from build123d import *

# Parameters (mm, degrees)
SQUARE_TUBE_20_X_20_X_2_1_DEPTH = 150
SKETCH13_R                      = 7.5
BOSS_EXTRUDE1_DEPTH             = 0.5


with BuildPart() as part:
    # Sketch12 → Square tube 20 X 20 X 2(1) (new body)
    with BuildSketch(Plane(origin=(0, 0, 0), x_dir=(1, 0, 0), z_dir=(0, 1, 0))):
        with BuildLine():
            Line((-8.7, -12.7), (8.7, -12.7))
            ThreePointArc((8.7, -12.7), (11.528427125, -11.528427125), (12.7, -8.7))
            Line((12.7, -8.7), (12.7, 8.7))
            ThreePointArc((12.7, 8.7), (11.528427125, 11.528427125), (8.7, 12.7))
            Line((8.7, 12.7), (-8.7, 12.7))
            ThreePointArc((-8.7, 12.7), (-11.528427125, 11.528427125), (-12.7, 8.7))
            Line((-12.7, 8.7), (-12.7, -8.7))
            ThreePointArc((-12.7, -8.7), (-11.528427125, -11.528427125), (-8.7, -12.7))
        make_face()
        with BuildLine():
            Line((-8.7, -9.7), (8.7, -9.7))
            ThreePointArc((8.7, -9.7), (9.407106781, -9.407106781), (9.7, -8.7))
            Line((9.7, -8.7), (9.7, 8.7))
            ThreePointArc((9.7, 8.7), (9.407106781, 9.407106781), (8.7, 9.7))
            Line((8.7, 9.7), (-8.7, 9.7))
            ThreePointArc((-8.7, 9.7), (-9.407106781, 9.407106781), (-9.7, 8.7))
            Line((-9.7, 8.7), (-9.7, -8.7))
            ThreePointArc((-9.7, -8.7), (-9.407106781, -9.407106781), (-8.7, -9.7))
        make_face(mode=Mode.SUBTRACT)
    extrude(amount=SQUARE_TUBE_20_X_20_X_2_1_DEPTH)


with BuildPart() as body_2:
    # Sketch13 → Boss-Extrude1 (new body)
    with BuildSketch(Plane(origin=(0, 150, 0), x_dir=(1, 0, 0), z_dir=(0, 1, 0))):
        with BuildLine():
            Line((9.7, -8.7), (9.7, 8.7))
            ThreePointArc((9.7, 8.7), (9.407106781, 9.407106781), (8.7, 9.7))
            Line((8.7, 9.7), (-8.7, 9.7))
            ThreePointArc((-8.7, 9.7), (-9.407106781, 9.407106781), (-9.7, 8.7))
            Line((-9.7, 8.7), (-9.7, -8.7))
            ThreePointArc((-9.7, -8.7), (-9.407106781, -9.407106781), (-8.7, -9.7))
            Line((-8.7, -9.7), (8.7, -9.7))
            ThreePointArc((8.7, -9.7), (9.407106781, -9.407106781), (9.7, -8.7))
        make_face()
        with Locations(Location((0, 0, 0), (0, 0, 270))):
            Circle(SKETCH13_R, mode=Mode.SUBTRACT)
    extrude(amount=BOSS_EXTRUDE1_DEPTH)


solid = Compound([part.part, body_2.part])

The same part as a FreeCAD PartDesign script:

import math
import FreeCAD as App
import Part
import Sketcher

V = App.Vector
Q = App.Units.Quantity

doc = App.newDocument("Part")
body = doc.addObject("PartDesign::Body", "Body")

# Sketch on XZ plane
sketch1 = body.newObject("Sketcher::SketchObject", "Sketch")
sketch1.AttachmentSupport = (doc.getObject("XZ_Plane"), [""])
sketch1.MapMode = "FlatFace"
sketch1.addGeometry([
    Part.LineSegment(V(-8.7, 12.7, 0), V(8.7, 12.7, 0)),  # 0
    Part.ArcOfCircle(Part.Circle(V(8.7, 8.7, 0), V(0, 0, 1), 4), math.radians(0), math.radians(90)),  # 1
    Part.LineSegment(V(12.7, 8.7, 0), V(12.7, -8.7, 0)),  # 2
    Part.ArcOfCircle(Part.Circle(V(8.7, -8.7, 0), V(0, 0, 1), 4), math.radians(-90), math.radians(0)),  # 3
    Part.LineSegment(V(8.7, -12.7, 0), V(-8.7, -12.7, 0)),  # 4
    Part.ArcOfCircle(Part.Circle(V(-8.7, -8.7, 0), V(0, 0, 1), 4), math.radians(180), math.radians(270)),  # 5
    Part.LineSegment(V(-12.7, -8.7, 0), V(-12.7, 8.7, 0)),  # 6
    Part.ArcOfCircle(Part.Circle(V(-8.7, 8.7, 0), V(0, 0, 1), 4), math.radians(90), math.radians(180)),  # 7
    Part.LineSegment(V(8.7, 9.7, 0), V(-8.7, 9.7, 0)),  # 8
    Part.ArcOfCircle(Part.Circle(V(-8.7, 8.7, 0), V(0, 0, 1), 1), math.radians(90), math.radians(180)),  # 9
    Part.LineSegment(V(-9.7, 8.7, 0), V(-9.7, -8.7, 0)),  # 10
    Part.ArcOfCircle(Part.Circle(V(-8.7, -8.7, 0), V(0, 0, 1), 1), math.radians(-180), math.radians(-90)),  # 11
    Part.LineSegment(V(-8.7, -9.7, 0), V(8.7, -9.7, 0)),  # 12
    Part.ArcOfCircle(Part.Circle(V(8.7, -8.7, 0), V(0, 0, 1), 1), math.radians(-90), math.radians(0)),  # 13
    Part.LineSegment(V(9.7, -8.7, 0), V(9.7, 8.7, 0)),  # 14
    Part.ArcOfCircle(Part.Circle(V(8.7, 8.7, 0), V(0, 0, 1), 1), math.radians(0), math.radians(90)),  # 15
], False)
sketch1.addConstraint([
    Sketcher.Constraint("Tangent", 0, 2, 1, 2),
    Sketcher.Constraint("Tangent", 1, 1, 2, 1),
    Sketcher.Constraint("Tangent", 2, 2, 3, 2),
    Sketcher.Constraint("Tangent", 3, 1, 4, 1),
    Sketcher.Constraint("Tangent", 4, 2, 5, 2),
    Sketcher.Constraint("Tangent", 5, 1, 6, 1),
    Sketcher.Constraint("Tangent", 6, 2, 7, 2),
    Sketcher.Constraint("Tangent", 7, 1, 0, 1),
    Sketcher.Constraint("Tangent", 8, 2, 9, 1),
    Sketcher.Constraint("Tangent", 9, 2, 10, 1),
    Sketcher.Constraint("Tangent", 10, 2, 11, 1),
    Sketcher.Constraint("Tangent", 11, 2, 12, 1),
    Sketcher.Constraint("Tangent", 12, 2, 13, 1),
    Sketcher.Constraint("Tangent", 13, 2, 14, 1),
    Sketcher.Constraint("Tangent", 14, 2, 15, 1),
    Sketcher.Constraint("Tangent", 15, 2, 8, 1),
    Sketcher.Constraint("Horizontal", 0),
    Sketcher.Constraint("Vertical", 2),
    Sketcher.Constraint("Horizontal", 4),
    Sketcher.Constraint("Vertical", 6),
    Sketcher.Constraint("Horizontal", 8),
    Sketcher.Constraint("Vertical", 10),
    Sketcher.Constraint("Horizontal", 12),
    Sketcher.Constraint("Vertical", 14),
    Sketcher.Constraint("Coincident", 9, 3, 7, 3),
    Sketcher.Constraint("Coincident", 11, 3, 5, 3),
    Sketcher.Constraint("Coincident", 13, 3, 3, 3),
    Sketcher.Constraint("Equal", 1, 3),
    Sketcher.Constraint("Equal", 3, 5),
    Sketcher.Constraint("Equal", 5, 7),
    Sketcher.Constraint("Equal", 13, 15),
    Sketcher.Constraint("Symmetric", 1, 3, 5, 3, -1, 1),
    Sketcher.Constraint("Equal", 12, 2),
    Sketcher.Constraint("Radius", 1, Q("4 mm")),
    Sketcher.Constraint("Radius", 9, Q("1 mm")),
    Sketcher.Constraint("DistanceX", 0, 1, 0, 2, Q("17.4 mm")),
])
pad1 = body.newObject("PartDesign::Pad", "Pad")
pad1.Profile = sketch1
pad1.Length = 150
pad1.Reversed = True
body2 = doc.addObject("PartDesign::Body", "Body001")

# Sketch on XZ plane
sketch2 = body2.newObject("Sketcher::SketchObject", "Sketch001")
sketch2.AttachmentSupport = (doc.getObject("XZ_Plane001"), [""])
sketch2.MapMode = "FlatFace"
sketch2.AttachmentOffset = App.Placement(V(0, 0, -150), App.Rotation())
sketch2.addGeometry([
    Part.LineSegment(V(9.7, 8.7, 0), V(9.7, -8.7, 0)),  # 0
    Part.ArcOfCircle(Part.Circle(V(8.7, -8.7, 0), V(0, 0, 1), 1), math.radians(-90), math.radians(0)),  # 1
    Part.LineSegment(V(8.7, -9.7, 0), V(-8.7, -9.7, 0)),  # 2
    Part.ArcOfCircle(Part.Circle(V(-8.7, -8.7, 0), V(0, 0, 1), 1), math.radians(-180), math.radians(-90)),  # 3
    Part.LineSegment(V(-9.7, -8.7, 0), V(-9.7, 8.7, 0)),  # 4
    Part.ArcOfCircle(Part.Circle(V(-8.7, 8.7, 0), V(0, 0, 1), 1), math.radians(90), math.radians(180)),  # 5
    Part.LineSegment(V(-8.7, 9.7, 0), V(8.7, 9.7, 0)),  # 6
    Part.ArcOfCircle(Part.Circle(V(8.7, 8.7, 0), V(0, 0, 1), 1), math.radians(0), math.radians(90)),  # 7
    Part.Circle(V(0, 0, 0), V(0, 0, 1), 7.5),  # 8
], False)
sketch2.addConstraint([
    Sketcher.Constraint("Tangent", 0, 2, 1, 2),
    Sketcher.Constraint("Tangent", 1, 1, 2, 1),
    Sketcher.Constraint("Tangent", 2, 2, 3, 2),
    Sketcher.Constraint("Tangent", 3, 1, 4, 1),
    Sketcher.Constraint("Tangent", 4, 2, 5, 2),
    Sketcher.Constraint("Tangent", 5, 1, 6, 1),
    Sketcher.Constraint("Tangent", 6, 2, 7, 2),
    Sketcher.Constraint("Tangent", 7, 1, 0, 1),
    Sketcher.Constraint("Vertical", 0),
    Sketcher.Constraint("Horizontal", 2),
    Sketcher.Constraint("Vertical", 4),
    Sketcher.Constraint("Horizontal", 6),
    Sketcher.Constraint("Coincident", 8, 3, -1, 1),
    Sketcher.Constraint("Equal", 1, 3),
    Sketcher.Constraint("Equal", 3, 5),
    Sketcher.Constraint("Equal", 5, 7),
    Sketcher.Constraint("Symmetric", 1, 3, 5, 3, -1, 1),
    Sketcher.Constraint("Equal", 6, 0),
    Sketcher.Constraint("Diameter", 8, Q("15 mm")),
    Sketcher.Constraint("Radius", 1, Q("1 mm")),
    Sketcher.Constraint("DistanceX", 2, 2, 2, 1, Q("17.4 mm")),
])
pad2 = body2.newObject("PartDesign::Pad", "Pad001")
pad2.Profile = sketch2
pad2.Length = 0.5
pad2.Reversed = True

doc.recompute()
